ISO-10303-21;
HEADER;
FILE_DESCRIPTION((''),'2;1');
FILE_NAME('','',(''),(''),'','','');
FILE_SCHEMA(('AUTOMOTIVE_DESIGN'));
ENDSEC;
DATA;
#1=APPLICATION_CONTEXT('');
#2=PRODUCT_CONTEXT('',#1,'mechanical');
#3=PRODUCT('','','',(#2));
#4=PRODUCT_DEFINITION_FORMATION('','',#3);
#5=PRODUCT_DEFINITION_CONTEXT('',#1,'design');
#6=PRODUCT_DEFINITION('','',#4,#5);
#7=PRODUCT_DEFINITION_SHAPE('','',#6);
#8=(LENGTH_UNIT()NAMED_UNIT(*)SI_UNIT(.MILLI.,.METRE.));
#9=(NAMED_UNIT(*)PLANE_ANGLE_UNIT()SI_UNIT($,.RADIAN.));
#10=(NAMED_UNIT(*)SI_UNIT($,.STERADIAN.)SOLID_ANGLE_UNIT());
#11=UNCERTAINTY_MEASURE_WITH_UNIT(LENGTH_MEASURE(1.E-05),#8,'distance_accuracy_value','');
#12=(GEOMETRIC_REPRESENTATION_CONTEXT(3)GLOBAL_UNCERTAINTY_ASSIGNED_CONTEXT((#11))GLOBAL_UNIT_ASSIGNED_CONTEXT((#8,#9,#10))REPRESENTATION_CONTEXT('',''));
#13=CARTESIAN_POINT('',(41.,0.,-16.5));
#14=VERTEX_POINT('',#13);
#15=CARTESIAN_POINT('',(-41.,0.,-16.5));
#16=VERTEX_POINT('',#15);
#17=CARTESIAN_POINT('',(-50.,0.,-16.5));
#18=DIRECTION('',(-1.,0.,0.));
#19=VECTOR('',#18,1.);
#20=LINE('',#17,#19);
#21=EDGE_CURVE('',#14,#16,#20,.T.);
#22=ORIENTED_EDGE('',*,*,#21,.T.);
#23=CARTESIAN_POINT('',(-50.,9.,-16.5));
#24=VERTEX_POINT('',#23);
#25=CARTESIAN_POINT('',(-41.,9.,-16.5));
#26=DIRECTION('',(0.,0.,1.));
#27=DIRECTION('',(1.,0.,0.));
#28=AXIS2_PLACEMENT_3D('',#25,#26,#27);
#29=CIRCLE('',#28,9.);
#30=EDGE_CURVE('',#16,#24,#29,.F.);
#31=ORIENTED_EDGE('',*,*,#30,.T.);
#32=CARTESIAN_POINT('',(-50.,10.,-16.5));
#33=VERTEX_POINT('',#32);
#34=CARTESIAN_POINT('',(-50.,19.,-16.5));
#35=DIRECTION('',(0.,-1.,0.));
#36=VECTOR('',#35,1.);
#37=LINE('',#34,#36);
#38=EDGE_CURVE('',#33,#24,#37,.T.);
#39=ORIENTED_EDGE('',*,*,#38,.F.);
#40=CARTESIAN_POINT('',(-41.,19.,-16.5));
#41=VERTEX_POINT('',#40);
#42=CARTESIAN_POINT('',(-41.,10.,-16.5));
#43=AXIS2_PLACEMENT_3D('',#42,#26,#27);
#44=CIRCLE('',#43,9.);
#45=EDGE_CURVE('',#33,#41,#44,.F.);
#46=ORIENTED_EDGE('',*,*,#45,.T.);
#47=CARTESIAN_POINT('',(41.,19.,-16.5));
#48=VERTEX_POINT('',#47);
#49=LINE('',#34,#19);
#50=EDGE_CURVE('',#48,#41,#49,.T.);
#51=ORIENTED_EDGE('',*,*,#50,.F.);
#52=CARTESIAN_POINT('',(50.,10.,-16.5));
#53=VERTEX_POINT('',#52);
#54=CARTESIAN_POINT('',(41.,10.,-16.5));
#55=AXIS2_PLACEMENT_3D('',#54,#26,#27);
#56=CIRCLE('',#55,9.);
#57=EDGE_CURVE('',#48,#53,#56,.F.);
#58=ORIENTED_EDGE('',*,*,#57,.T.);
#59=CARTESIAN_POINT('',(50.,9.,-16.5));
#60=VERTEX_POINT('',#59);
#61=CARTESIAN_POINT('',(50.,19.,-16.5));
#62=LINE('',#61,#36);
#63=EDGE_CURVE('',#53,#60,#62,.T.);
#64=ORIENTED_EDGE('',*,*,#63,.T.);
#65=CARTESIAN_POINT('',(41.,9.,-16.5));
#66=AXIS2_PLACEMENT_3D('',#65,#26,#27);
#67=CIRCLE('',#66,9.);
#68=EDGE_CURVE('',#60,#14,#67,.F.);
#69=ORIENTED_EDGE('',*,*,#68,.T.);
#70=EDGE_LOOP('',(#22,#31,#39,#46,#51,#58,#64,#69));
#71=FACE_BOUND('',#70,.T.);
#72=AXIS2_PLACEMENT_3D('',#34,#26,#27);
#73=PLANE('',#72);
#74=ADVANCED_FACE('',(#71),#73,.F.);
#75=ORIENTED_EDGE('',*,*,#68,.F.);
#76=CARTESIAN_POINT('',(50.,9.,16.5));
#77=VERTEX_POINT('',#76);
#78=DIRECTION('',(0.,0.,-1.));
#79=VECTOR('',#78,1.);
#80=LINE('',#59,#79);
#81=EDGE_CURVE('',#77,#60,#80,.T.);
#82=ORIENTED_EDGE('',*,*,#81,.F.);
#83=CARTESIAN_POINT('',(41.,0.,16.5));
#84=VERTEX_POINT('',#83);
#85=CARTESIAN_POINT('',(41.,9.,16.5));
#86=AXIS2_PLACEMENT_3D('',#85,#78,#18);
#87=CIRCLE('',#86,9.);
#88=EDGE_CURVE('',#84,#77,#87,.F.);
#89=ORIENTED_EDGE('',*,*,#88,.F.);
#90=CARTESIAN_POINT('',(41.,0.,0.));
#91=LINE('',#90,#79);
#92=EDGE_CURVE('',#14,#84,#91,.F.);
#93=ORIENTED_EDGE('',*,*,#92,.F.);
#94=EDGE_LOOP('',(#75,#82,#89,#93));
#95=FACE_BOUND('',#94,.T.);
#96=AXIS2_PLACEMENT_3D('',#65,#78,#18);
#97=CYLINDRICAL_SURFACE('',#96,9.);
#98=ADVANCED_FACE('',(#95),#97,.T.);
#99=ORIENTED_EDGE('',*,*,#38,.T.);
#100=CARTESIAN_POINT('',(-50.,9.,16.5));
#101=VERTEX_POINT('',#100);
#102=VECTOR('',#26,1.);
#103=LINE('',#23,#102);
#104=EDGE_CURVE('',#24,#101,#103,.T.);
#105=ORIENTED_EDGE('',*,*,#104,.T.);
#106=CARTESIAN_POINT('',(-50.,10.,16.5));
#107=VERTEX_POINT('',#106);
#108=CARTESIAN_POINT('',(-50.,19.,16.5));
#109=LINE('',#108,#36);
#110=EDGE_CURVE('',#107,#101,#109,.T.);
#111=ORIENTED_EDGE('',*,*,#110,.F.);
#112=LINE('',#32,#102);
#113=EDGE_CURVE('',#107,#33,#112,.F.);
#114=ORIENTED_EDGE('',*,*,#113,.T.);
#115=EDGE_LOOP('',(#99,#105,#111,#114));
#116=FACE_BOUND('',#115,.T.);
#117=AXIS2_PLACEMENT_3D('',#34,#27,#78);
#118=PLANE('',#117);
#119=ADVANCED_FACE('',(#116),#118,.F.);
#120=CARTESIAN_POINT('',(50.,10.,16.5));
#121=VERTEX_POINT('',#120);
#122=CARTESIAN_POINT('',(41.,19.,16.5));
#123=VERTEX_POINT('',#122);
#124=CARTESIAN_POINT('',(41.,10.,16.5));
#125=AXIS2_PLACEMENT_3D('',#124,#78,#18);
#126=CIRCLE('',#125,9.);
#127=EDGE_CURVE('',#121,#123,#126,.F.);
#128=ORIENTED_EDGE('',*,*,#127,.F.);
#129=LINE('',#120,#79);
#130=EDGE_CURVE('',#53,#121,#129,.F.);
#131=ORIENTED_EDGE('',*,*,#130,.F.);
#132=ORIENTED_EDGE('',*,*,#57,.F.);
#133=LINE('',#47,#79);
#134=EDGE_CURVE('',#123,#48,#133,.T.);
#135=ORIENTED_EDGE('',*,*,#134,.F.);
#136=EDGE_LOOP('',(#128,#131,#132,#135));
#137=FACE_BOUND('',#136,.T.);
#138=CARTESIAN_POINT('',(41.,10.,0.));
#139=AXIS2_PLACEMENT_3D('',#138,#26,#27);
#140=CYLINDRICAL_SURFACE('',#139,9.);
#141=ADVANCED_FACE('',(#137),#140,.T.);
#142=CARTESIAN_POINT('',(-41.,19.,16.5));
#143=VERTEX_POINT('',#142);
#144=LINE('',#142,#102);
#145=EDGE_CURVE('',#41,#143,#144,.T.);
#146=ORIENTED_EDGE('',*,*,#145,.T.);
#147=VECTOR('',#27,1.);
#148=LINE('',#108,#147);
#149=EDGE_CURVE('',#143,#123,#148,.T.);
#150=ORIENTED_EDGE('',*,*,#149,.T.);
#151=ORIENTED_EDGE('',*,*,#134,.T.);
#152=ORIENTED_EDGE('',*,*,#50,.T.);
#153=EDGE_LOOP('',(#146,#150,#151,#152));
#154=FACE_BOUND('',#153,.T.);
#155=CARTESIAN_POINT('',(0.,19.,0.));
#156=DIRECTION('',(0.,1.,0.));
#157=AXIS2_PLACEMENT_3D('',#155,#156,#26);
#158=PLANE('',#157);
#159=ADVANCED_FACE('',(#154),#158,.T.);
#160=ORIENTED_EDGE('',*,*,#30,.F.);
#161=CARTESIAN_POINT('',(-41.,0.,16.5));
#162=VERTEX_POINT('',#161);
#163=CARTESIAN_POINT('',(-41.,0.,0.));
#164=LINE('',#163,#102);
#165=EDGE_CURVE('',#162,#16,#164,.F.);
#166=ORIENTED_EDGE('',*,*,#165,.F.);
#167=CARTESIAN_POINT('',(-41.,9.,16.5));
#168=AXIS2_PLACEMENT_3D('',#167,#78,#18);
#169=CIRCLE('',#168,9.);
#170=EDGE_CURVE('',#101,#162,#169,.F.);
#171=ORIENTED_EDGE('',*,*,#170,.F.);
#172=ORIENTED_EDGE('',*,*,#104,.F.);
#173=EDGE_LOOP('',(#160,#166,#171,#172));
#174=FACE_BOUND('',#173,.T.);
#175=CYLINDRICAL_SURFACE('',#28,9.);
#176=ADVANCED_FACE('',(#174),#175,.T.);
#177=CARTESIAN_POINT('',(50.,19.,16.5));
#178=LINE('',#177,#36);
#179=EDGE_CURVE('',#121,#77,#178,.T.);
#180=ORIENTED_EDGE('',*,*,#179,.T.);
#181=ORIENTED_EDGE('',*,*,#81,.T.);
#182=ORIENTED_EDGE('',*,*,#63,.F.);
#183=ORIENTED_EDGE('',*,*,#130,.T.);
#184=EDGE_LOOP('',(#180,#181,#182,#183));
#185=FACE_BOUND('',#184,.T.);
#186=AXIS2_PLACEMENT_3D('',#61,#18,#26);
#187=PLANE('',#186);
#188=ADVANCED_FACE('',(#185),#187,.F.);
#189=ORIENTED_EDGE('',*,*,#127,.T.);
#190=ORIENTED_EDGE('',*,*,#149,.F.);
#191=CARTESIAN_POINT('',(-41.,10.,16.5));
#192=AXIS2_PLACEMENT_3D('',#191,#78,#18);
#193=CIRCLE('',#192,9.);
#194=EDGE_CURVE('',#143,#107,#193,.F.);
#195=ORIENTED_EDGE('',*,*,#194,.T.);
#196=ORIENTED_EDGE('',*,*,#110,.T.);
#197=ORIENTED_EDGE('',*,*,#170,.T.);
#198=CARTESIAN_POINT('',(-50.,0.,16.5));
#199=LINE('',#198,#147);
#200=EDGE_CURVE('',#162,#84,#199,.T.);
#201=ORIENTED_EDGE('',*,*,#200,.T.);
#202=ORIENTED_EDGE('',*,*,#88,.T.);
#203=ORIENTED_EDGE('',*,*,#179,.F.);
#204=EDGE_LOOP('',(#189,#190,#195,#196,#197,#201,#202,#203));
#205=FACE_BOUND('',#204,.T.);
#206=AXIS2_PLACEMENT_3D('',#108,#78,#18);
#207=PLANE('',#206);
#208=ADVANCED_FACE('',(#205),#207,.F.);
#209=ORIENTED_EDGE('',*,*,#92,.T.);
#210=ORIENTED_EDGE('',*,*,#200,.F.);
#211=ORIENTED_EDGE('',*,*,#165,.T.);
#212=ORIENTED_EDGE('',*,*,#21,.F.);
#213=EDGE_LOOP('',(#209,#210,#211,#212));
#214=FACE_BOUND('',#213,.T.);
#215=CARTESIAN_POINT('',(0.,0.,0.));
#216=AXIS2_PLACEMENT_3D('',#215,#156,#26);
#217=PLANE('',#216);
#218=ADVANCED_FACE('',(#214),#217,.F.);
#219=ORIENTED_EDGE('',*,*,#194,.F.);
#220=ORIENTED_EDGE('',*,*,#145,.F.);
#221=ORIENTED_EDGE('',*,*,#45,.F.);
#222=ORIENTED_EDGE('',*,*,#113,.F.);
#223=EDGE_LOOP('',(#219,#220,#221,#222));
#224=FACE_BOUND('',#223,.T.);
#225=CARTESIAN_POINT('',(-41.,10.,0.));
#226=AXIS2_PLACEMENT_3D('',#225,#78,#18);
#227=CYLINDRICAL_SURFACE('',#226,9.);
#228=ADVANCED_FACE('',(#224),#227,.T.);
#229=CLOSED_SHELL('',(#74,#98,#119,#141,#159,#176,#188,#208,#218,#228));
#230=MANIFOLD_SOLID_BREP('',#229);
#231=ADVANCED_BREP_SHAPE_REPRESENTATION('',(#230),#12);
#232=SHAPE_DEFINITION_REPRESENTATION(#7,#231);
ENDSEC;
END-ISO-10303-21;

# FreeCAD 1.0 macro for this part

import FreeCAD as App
import Part
import Sketcher

V = App.Vector
Q = App.Units.Quantity


def edges_at(feature, points):
    """Names of the edges that pass closest to the given points."""
    edges = feature.Shape.Edges
    near = lambda p: min(range(len(edges)), key=lambda i: edges[i].distToShape(Part.Vertex(*p))[0])
    return sorted({f"Edge{near(p) + 1}" for p in points})


def add_polygon(sketch, points):
    """Adds a closed chain of lines whose ends are joined by coincident constraints."""
    first, n = sketch.GeometryCount, len(points)
    for a, b in zip(points, points[1:] + points[:1]):
        sketch.addGeometry(Part.LineSegment(App.Vector(*a, 0), App.Vector(*b, 0)), False)
    for i in range(n):
        sketch.addConstraint(Sketcher.Constraint("Coincident", first + i, 2, first + (i + 1) % n, 1))

doc = App.newDocument("Part")
body = doc.addObject("PartDesign::Body", "Body")

sketch1 = doc.addObject("Sketcher::SketchObject", "Sketch")
body.addObject(sketch1)
sketch1.AttachmentSupport = (doc.XZ_Plane, [""])
sketch1.MapMode = "FlatFace"
add_polygon(sketch1, [(-50, -16.5), (-50, 16.5), (50, 16.5), (50, -16.5)])
sketch1.addConstraint([
    Sketcher.Constraint("Vertical", 0),
    Sketcher.Constraint("Horizontal", 1),
    Sketcher.Constraint("Vertical", 2),
    Sketcher.Constraint("Horizontal", 3),
    Sketcher.Constraint("Symmetric", 0, 2, 2, 2, -1, 1),
    Sketcher.Constraint("DistanceX", 1, 1, 1, 2, Q("100 mm")),
    Sketcher.Constraint("DistanceY", 0, 1, 0, 2, Q("33 mm")),
])
pad1 = doc.addObject("PartDesign::Pad", "Pad")
body.addObject(pad1)
pad1.Profile = sketch1
pad1.Length = 19
pad1.Reversed = True
doc.recompute()

fillet = doc.addObject("PartDesign::Fillet", "Fillet")
body.addObject(fillet)
fillet.Base = (pad1, edges_at(pad1, [
    (-50, 19, 0),
    (50, 19, 0),
    (-50, 0, 0),
    (50, 0, 0),
]))
fillet.Radius = 9

doc.recompute()
